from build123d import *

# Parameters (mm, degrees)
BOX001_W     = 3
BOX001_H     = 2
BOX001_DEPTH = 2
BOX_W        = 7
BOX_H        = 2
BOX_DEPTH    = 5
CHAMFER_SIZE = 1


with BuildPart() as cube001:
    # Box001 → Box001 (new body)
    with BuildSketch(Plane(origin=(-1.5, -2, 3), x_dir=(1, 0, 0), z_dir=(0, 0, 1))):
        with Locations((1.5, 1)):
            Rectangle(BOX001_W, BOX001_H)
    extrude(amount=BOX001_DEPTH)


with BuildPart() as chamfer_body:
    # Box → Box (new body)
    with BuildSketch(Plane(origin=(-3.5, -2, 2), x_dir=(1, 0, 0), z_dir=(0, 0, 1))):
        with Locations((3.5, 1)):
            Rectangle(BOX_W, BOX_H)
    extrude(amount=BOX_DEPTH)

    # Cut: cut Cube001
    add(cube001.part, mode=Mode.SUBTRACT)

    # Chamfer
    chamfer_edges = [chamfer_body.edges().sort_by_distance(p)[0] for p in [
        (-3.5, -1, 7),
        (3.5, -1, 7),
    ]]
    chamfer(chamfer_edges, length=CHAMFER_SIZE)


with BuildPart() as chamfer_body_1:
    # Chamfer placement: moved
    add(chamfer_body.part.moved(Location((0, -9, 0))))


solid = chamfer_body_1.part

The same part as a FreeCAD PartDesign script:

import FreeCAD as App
import Part
import Sketcher


def edges_at(feature, points):
    """Names of the edges that pass closest to the given points."""
    edges = feature.Shape.Edges
    near = lambda p: min(range(len(edges)), key=lambda i: edges[i].distToShape(Part.Vertex(*p))[0])
    return sorted({f"Edge{near(p) + 1}" for p in points})

doc = App.newDocument("Part")
body = doc.addObject("PartDesign::Body", "Body")

# Sketch on XY plane
sketch1 = doc.addObject("Sketcher::SketchObject", "Sketch")
body.addObject(sketch1)
sketch1.AttachmentSupport = (doc.XY_Plane, [""])
sketch1.MapMode = "FlatFace"
sketch1.AttachmentOffset = App.Placement(App.Vector(0, 0, 3), App.Rotation())
sketch1.addGeometry(Part.LineSegment(App.Vector(-1.5, 0, 0), App.Vector(-1.5, -2, 0)), False)
sketch1.addGeometry(Part.LineSegment(App.Vector(-1.5, -2, 0), App.Vector(1.5, -2, 0)), False)
sketch1.addGeometry(Part.LineSegment(App.Vector(1.5, -2, 0), App.Vector(1.5, 0, 0)), False)
sketch1.addGeometry(Part.LineSegment(App.Vector(1.5, 0, 0), App.Vector(-1.5, 0, 0)), False)
sketch1.addConstraint(Sketcher.Constraint("Coincident", 0, 2, 1, 1))
sketch1.addConstraint(Sketcher.Constraint("Coincident", 1, 2, 2, 1))
sketch1.addConstraint(Sketcher.Constraint("Coincident", 2, 2, 3, 1))
sketch1.addConstraint(Sketcher.Constraint("Coincident", 3, 2, 0, 1))
sketch1.addConstraint(Sketcher.Constraint("Vertical", 0))
sketch1.addConstraint(Sketcher.Constraint("Horizontal", 1))
sketch1.addConstraint(Sketcher.Constraint("Vertical", 2))
sketch1.addConstraint(Sketcher.Constraint("Horizontal", 3))
sketch1.addConstraint(Sketcher.Constraint("Symmetric", 2, 2, 3, 2, -1, 1))
sketch1.addConstraint(Sketcher.Constraint("DistanceX", 1, 1, 1, 2, 3.0))
sketch1.addConstraint(Sketcher.Constraint("DistanceY", 0, 2, 0, 1, 2.0))
pad1 = doc.addObject("PartDesign::Pad", "Pad")
body.addObject(pad1)
pad1.Profile = sketch1
pad1.Length = 2
body2 = doc.addObject("PartDesign::Body", "Body001")

# Sketch on XY plane
sketch2 = doc.addObject("Sketcher::SketchObject", "Sketch001")
body2.addObject(sketch2)
sketch2.AttachmentSupport = (doc.getObject("XY_Plane001"), [""])
sketch2.MapMode = "FlatFace"
sketch2.AttachmentOffset = App.Placement(App.Vector(0, 0, 2), App.Rotation())
sketch2.addGeometry(Part.LineSegment(App.Vector(-3.5, 0, 0), App.Vector(-3.5, -2, 0)), False)
sketch2.addGeometry(Part.LineSegment(App.Vector(-3.5, -2, 0), App.Vector(3.5, -2, 0)), False)
sketch2.addGeometry(Part.LineSegment(App.Vector(3.5, -2, 0), App.Vector(3.5, 0, 0)), False)
sketch2.addGeometry(Part.LineSegment(App.Vector(3.5, 0, 0), App.Vector(-3.5, 0, 0)), False)
sketch2.addConstraint(Sketcher.Constraint("Coincident", 0, 2, 1, 1))
sketch2.addConstraint(Sketcher.Constraint("Coincident", 1, 2, 2, 1))
sketch2.addConstraint(Sketcher.Constraint("Coincident", 2, 2, 3, 1))
sketch2.addConstraint(Sketcher.Constraint("Coincident", 3, 2, 0, 1))
sketch2.addConstraint(Sketcher.Constraint("Vertical", 0))
sketch2.addConstraint(Sketcher.Constraint("Horizontal", 1))
sketch2.addConstraint(Sketcher.Constraint("Vertical", 2))
sketch2.addConstraint(Sketcher.Constraint("Horizontal", 3))
sketch2.addConstraint(Sketcher.Constraint("Symmetric", 2, 2, 3, 2, -1, 1))
sketch2.addConstraint(Sketcher.Constraint("DistanceX", 1, 1, 1, 2, 7.0))
sketch2.addConstraint(Sketcher.Constraint("DistanceY", 0, 2, 0, 1, 2.0))
pad2 = doc.addObject("PartDesign::Pad", "Pad001")
body2.addObject(pad2)
pad2.Profile = sketch2
pad2.Length = 5
doc.recompute()

boolean = doc.addObject("PartDesign::Boolean", "Boolean")
body2.addObject(boolean)
boolean.Type = "Cut"
boolean.addObjects([body])
doc.recompute()

chamfer = doc.addObject("PartDesign::Chamfer", "Chamfer")
body2.addObject(chamfer)
chamfer.Base = (boolean, edges_at(boolean, [(-3.5, -1, 7), (3.5, -1, 7)]))
chamfer.Size = 1
body3 = doc.addObject("PartDesign::Body", "Body002")
doc.recompute()

body2.Placement = App.Placement(App.Vector(0, -9, 0), App.Rotation(App.Vector(0, 0, 1), 0))
boolean2 = doc.addObject("PartDesign::Boolean", "Boolean001")
body3.addObject(boolean2)
boolean2.Type = "Fuse"
boolean2.addObjects([body2])

doc.recompute()
